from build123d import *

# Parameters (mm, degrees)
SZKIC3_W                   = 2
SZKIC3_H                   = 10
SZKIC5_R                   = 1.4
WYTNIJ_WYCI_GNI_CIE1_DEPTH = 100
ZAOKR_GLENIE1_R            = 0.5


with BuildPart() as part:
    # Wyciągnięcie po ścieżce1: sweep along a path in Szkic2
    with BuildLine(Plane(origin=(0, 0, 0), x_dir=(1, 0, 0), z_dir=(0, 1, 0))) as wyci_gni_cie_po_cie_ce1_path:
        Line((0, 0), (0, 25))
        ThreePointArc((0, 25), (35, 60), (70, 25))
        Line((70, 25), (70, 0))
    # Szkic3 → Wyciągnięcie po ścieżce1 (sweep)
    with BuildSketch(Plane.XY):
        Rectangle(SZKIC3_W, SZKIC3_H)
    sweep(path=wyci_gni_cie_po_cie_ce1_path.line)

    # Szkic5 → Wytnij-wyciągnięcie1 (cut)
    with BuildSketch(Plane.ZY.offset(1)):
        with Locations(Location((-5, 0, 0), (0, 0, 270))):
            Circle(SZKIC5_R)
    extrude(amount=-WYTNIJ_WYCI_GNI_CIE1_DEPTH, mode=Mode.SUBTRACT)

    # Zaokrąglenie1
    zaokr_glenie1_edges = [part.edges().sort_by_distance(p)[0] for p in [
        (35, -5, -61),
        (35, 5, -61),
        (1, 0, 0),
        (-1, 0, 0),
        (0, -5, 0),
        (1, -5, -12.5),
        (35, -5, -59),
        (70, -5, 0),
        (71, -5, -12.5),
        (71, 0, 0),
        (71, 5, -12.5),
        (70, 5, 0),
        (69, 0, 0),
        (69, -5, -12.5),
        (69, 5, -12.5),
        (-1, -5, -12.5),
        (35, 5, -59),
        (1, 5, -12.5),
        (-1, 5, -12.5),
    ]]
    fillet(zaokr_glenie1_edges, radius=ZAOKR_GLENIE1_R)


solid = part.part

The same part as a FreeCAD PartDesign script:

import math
import FreeCAD as App
import Part
import Sketcher
from FreeCAD import Vector
Q = App.Units.Quantity


def edges_at(feature, points):
    """Names of the edges that pass closest to the given points."""
    edges = feature.Shape.Edges
    near = lambda p: min(range(len(edges)), key=lambda i: edges[i].distToShape(Part.Vertex(*p))[0])
    return sorted({f"Edge{near(p) + 1}" for p in points})


def add_polygon(sketch, points):
    """Adds a closed chain of lines whose ends are joined by coincident constraints."""
    first, n = sketch.GeometryCount, len(points)
    for a, b in zip(points, points[1:] + points[:1]):
        sketch.addGeometry(Part.LineSegment(App.Vector(*a, 0), App.Vector(*b, 0)), False)
    for i in range(n):
        sketch.addConstraint(Sketcher.Constraint("Coincident", first + i, 2, first + (i + 1) % n, 1))

doc = App.newDocument("Part")
body = doc.addObject("PartDesign::Body", "Body")

# Sketch on XY plane
sketch1 = doc.addObject("Sketcher::SketchObject", "Sketch")
body.addObject(sketch1)
sketch1.AttachmentSupport = (doc.XY_Plane, [""])
sketch1.MapMode = "FlatFace"
add_polygon(sketch1, [(-1, 5), (-1, -5), (1, -5), (1, 5)])  # lines 0-3
sketch1.addConstraint([
    Sketcher.Constraint("Vertical", 0),
    Sketcher.Constraint("Horizontal", 1),
    Sketcher.Constraint("Vertical", 2),
    Sketcher.Constraint("Horizontal", 3),
    Sketcher.Constraint("Symmetric", 0, 2, 2, 2, -1, 1),
    Sketcher.Constraint("DistanceX", 1, 1, 1, 2, Q("2 mm")),
    Sketcher.Constraint("DistanceY", 0, 2, 0, 1, Q("10 mm")),
])

# Sketch on XZ plane
sketch2 = doc.addObject("Sketcher::SketchObject", "Sketch001")
body.addObject(sketch2)
sketch2.AttachmentSupport = (doc.XZ_Plane, [""])
sketch2.MapMode = "FlatFace"
sketch2.addGeometry([
    Part.LineSegment(Vector(0, 0, 0), Vector(0, -25, 0)),
    Part.ArcOfCircle(Part.Circle(Vector(35, -25, 0), Vector(0, 0, 1), 35), math.radians(180), math.radians(360)),
    Part.LineSegment(Vector(70, -25, 0), Vector(70, 0, 0)),
], False)
sketch2.addConstraint([
    Sketcher.Constraint("Tangent", 0, 2, 1, 1),
    Sketcher.Constraint("Tangent", 1, 2, 2, 1),
    Sketcher.Constraint("Vertical", 0),
    Sketcher.Constraint("Vertical", 2),
    Sketcher.Constraint("Coincident", 0, 1, -1, 1),
    Sketcher.Constraint("PointOnObject", 2, 2, -1),
    Sketcher.Constraint("Radius", 1, Q("35 mm")),
    Sketcher.Constraint("DistanceY", 0, 2, 0, 1, Q("25 mm")),
])
doc.recompute()

additivepipe = doc.addObject("PartDesign::AdditivePipe", "AdditivePipe")
body.addObject(additivepipe)
additivepipe.Profile = sketch1
additivepipe.Spine = (sketch2, ["Edge1", "Edge2", "Edge3"])

# Sketch on YZ plane
sketch3 = doc.addObject("Sketcher::SketchObject", "Sketch002")
body.addObject(sketch3)
sketch3.AttachmentSupport = (doc.YZ_Plane, [""])
sketch3.MapMode = "FlatFace"
sketch3.AttachmentOffset = App.Placement(Vector(0, 0, -1), App.Rotation())
sketch3.addGeometry(Part.Circle(Vector(0, -5, 0), Vector(0, 0, 1), 1.4), False)
sketch3.addConstraint([
    Sketcher.Constraint("PointOnObject", 0, 3, -2),
    Sketcher.Constraint("Diameter", 0, Q("2.8 mm")),
    Sketcher.Constraint("DistanceY", 0, 3, -1, 1, Q("5 mm")),
])
pocket1 = doc.addObject("PartDesign::Pocket", "Pocket")
body.addObject(pocket1)
pocket1.Profile = sketch3
pocket1.Length = 100
pocket1.Reversed = True
doc.recompute()

fillet = doc.addObject("PartDesign::Fillet", "Fillet")
body.addObject(fillet)
fillet.Base = (pocket1, edges_at(pocket1, [
    (35, -5, -61),
    (35, 5, -61),
    (1, 0, 0),
    (-1, 0, 0),
    (0, -5, 0),
    (1, -5, -12.5),
    (35, -5, -59),
    (70, -5, 0),
    (71, -5, -12.5),
    (71, 0, 0),
    (71, 5, -12.5),
    (70, 5, 0),
    (69, 0, 0),
    (69, -5, -12.5),
    (69, 5, -12.5),
    (-1, -5, -12.5),
    (35, 5, -59),
    (1, 5, -12.5),
    (-1, 5, -12.5),
]))
fillet.Radius = 0.5

doc.recompute()
